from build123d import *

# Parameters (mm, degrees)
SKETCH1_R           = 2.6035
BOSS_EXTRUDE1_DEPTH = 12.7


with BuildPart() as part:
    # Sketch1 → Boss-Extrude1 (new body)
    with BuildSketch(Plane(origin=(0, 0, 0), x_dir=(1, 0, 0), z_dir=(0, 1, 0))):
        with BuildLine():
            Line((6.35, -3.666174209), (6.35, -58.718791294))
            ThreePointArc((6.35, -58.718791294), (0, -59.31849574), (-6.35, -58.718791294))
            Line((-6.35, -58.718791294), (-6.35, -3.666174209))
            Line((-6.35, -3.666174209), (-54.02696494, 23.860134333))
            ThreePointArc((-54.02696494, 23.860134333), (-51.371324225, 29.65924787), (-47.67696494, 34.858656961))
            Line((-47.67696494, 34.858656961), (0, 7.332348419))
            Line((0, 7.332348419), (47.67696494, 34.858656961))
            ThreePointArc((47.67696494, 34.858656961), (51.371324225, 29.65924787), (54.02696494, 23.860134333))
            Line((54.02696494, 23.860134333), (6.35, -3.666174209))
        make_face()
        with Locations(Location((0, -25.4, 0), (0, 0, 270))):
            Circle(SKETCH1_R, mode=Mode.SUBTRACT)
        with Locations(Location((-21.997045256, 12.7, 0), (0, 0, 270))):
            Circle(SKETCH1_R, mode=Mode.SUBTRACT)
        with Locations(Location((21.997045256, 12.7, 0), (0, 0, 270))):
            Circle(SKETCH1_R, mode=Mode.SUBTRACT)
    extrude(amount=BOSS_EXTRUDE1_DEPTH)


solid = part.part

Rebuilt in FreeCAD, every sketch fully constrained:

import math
import FreeCAD as App
import Part
import Sketcher
Q = App.Units.Quantity

doc = App.newDocument("Part")
params = doc.addObject("Spreadsheet::Sheet", "Params")
for row, (alias, value) in enumerate([
    ("sketch1_diameter", "0.205 in"),
    ("pad1_length", "0.5 in"),
], start=1):
    params.set(f"A{row}", alias)
    params.set(f"B{row}", "=" + value)
    params.setAlias(f"B{row}", alias)

body = doc.addObject("PartDesign::Body", "Body")

# Sketch on XZ plane
sketch1 = body.newObject("Sketcher::SketchObject", "Sketch")
sketch1.AttachmentSupport = (doc.getObject("XZ_Plane"), [""])
sketch1.MapMode = "FlatFace"
sketch1.addGeometry(Part.LineSegment(App.Vector(6.35, 58.718791, 0), App.Vector(6.35, 3.666174, 0)), False)
sketch1.addGeometry(Part.LineSegment(App.Vector(6.35, 3.666174, 0), App.Vector(54.026965, -23.860134, 0)), False)
sketch1.addGeometry(Part.ArcOfCircle(Part.Circle(App.Vector(21.997045, -12.7, 0), App.Vector(0, 0, 1), 33.918496), math.radians(-40.790211), math.radians(-19.209789)), False)
sketch1.addGeometry(Part.LineSegment(App.Vector(47.676965, -34.858657, 0), App.Vector(0, -7.332348, 0)), False)
sketch1.addGeometry(Part.LineSegment(App.Vector(0, -7.332348, 0), App.Vector(-47.676965, -34.858657, 0)), False)
sketch1.addGeometry(Part.ArcOfCircle(Part.Circle(App.Vector(-21.997045, -12.7, 0), App.Vector(0, 0, 1), 33.918496), math.radians(-160.790211), math.radians(-139.209789)), False)
sketch1.addGeometry(Part.LineSegment(App.Vector(-54.026965, -23.860134, 0), App.Vector(-6.35, 3.666174, 0)), False)
sketch1.addGeometry(Part.LineSegment(App.Vector(-6.35, 3.666174, 0), App.Vector(-6.35, 58.718791, 0)), False)
sketch1.addGeometry(Part.ArcOfCircle(Part.Circle(App.Vector(0, 25.4, 0), App.Vector(0, 0, 1), 33.918496), math.radians(79.209789), math.radians(100.790211)), False)
sketch1.addGeometry(Part.Circle(App.Vector(0, 25.4, 0), App.Vector(0, 0, 1), 2.6035), False)
sketch1.addGeometry(Part.Circle(App.Vector(21.997045, -12.7, 0), App.Vector(0, 0, 1), 2.6035), False)
sketch1.addGeometry(Part.Circle(App.Vector(-21.997045, -12.7, 0), App.Vector(0, 0, 1), 2.6035), False)
sketch1.addConstraint(Sketcher.Constraint("Coincident", 0, 2, 1, 1))
sketch1.addConstraint(Sketcher.Constraint("Coincident", 1, 2, 2, 2))
sketch1.addConstraint(Sketcher.Constraint("Coincident", 2, 1, 3, 1))
sketch1.addConstraint(Sketcher.Constraint("Coincident", 3, 2, 4, 1))
sketch1.addConstraint(Sketcher.Constraint("Coincident", 4, 2, 5, 2))
sketch1.addConstraint(Sketcher.Constraint("Coincident", 5, 1, 6, 1))
sketch1.addConstraint(Sketcher.Constraint("Coincident", 6, 2, 7, 1))
sketch1.addConstraint(Sketcher.Constraint("Coincident", 7, 2, 8, 2))
sketch1.addConstraint(Sketcher.Constraint("Coincident", 8, 1, 0, 1))
sketch1.addConstraint(Sketcher.Constraint("Vertical", 0))
sketch1.addConstraint(Sketcher.Constraint("Vertical", 7))
sketch1.addConstraint(Sketcher.Constraint("Coincident", 9, 3, 8, 3))
sketch1.addConstraint(Sketcher.Constraint("Coincident", 10, 3, 2, 3))
sketch1.addConstraint(Sketcher.Constraint("Coincident", 11, 3, 5, 3))
sketch1.addConstraint(Sketcher.Constraint("Equal", 2, 5))
sketch1.addConstraint(Sketcher.Constraint("Equal", 5, 8))
sketch1.addConstraint(Sketcher.Constraint("Equal", 9, 10))
sketch1.addConstraint(Sketcher.Constraint("Equal", 10, 11))
sketch1.addConstraint(Sketcher.Constraint("Symmetric", 2, 3, 5, 3, -2))
sketch1.addConstraint(Sketcher.Constraint("Symmetric", 0, 2, 6, 2, -2))
sketch1.addConstraint(Sketcher.Constraint("PointOnObject", 8, 3, -2))
sketch1.addConstraint(Sketcher.Constraint("PointOnObject", 3, 2, -2))
sketch1.addConstraint(Sketcher.Constraint("Parallel", 1, 3))
sketch1.addConstraint(Sketcher.Constraint("Parallel", 4, 6))
sketch1.addConstraint(Sketcher.Constraint("Horizontal", 2, 1, 4, 2))
sketch1.addConstraint(Sketcher.Constraint("Equal", 1, 3))
sketch1.addConstraint(Sketcher.Constraint("Diameter", 9, Q("0.205 in")))
sketch1.addConstraint(Sketcher.Constraint("DistanceY", -1, 1, 8, 3, Q("1 in")))
sketch1.addConstraint(Sketcher.Constraint("Angle", 1, Q("-30 deg")))
sketch1.addConstraint(Sketcher.Constraint("DistanceY", 2, 3, -1, 1, Q("0.5 in")))
sketch1.addConstraint(Sketcher.Constraint("DistanceX", 6, 2, 0, 2, Q("0.5 in")))
sketch1.addConstraint(Sketcher.Constraint("Radius", 2, 33.918496))
sketch1.addConstraint(Sketcher.Constraint("DistanceY", 0, 2, 0, 1, 55.052617))
sketch1.addConstraint(Sketcher.Constraint("DistanceY", 3, 2, -1, 1, 7.332348))
sketch1.setExpression("Constraints[26]", "Params.sketch1_diameter")
pad1 = body.newObject("PartDesign::Pad", "Pad")
pad1.Profile = sketch1
pad1.setExpression("Length", "Params.pad1_length")
pad1.Reversed = True

doc.recompute()
